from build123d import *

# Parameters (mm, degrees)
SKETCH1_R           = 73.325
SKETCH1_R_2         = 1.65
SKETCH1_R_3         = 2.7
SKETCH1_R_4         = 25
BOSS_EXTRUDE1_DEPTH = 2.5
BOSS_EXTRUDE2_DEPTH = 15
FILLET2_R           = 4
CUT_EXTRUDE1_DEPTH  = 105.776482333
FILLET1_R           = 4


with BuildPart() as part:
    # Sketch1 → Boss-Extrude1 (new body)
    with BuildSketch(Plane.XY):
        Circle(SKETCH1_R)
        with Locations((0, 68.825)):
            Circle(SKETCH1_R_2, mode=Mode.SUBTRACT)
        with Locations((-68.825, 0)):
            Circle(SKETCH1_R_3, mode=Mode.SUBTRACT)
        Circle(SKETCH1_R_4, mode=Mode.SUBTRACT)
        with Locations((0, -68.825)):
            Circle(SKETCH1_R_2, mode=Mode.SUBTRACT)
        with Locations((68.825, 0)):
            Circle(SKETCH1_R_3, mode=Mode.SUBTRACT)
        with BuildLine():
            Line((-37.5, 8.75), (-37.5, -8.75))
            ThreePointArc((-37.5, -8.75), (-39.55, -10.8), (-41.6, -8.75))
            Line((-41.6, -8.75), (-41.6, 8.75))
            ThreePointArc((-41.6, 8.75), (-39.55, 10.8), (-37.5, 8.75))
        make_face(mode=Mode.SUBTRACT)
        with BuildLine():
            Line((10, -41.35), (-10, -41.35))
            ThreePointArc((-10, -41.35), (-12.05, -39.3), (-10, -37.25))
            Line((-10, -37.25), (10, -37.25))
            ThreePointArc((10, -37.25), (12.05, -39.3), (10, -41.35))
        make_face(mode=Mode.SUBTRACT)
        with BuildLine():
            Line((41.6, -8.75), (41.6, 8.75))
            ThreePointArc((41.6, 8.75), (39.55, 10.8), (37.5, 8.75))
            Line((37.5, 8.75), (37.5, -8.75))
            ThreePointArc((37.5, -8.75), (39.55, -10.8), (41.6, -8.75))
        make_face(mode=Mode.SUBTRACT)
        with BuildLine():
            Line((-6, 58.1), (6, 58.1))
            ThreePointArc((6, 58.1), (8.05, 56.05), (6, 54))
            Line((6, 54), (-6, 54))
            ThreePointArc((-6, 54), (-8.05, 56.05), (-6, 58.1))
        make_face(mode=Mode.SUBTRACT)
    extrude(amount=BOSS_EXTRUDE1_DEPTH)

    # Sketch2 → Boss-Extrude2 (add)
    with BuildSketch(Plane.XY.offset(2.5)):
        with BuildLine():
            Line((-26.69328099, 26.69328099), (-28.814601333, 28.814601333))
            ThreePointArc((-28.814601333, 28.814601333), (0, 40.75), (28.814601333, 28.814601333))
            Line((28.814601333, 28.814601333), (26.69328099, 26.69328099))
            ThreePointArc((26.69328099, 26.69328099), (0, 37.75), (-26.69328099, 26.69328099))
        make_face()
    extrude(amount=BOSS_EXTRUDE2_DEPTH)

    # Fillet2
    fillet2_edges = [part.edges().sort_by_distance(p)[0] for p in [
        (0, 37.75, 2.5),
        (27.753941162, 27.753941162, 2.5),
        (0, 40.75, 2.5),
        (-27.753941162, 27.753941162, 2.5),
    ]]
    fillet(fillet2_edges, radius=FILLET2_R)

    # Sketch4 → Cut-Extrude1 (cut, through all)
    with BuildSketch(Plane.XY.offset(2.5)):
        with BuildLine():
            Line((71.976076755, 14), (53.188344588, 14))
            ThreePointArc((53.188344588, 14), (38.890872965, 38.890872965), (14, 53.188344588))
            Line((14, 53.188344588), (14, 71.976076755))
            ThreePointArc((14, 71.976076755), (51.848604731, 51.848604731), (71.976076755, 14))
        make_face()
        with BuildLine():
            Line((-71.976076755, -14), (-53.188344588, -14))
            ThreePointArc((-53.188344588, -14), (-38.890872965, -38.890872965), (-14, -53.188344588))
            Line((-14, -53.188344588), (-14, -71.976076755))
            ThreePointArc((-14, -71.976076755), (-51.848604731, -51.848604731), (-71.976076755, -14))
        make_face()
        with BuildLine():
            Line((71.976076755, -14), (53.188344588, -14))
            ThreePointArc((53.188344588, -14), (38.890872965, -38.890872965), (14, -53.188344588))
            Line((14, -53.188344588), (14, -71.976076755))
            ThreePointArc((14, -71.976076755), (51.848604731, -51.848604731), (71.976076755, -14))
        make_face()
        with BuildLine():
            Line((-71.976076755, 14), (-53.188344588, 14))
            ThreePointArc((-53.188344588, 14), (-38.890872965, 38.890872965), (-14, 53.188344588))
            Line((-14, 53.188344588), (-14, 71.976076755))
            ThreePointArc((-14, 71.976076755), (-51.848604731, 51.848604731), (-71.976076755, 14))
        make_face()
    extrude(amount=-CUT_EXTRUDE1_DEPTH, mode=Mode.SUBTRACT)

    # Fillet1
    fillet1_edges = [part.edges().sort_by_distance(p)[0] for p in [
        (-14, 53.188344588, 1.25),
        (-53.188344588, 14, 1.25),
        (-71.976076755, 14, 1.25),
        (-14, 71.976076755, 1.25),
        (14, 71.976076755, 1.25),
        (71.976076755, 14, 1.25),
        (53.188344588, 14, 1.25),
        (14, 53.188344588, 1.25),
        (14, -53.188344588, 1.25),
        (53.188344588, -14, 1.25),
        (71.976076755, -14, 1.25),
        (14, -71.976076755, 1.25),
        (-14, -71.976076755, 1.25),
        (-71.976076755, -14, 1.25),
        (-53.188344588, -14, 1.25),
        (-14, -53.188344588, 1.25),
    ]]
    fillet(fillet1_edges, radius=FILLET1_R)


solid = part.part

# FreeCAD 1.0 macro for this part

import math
import FreeCAD as App
import Part
import Sketcher
from FreeCAD import Vector


def edges_at(feature, points):
    """Names of the edges that pass closest to the given points."""
    edges = feature.Shape.Edges
    near = lambda p: min(range(len(edges)), key=lambda i: edges[i].distToShape(Part.Vertex(*p))[0])
    return sorted({f"Edge{near(p) + 1}" for p in points})

doc = App.newDocument("Part")
body = doc.addObject("PartDesign::Body", "Body")

# Sketch on XY plane
sketch1 = body.newObject("Sketcher::SketchObject", "Sketch")
sketch1.AttachmentSupport = (doc.getObject("XY_Plane"), [""])
sketch1.MapMode = "FlatFace"
sketch1.addGeometry(Part.Circle(Vector(0, 0, 0), Vector(0, 0, 1), 73.3), False)
sketch1.addGeometry(Part.Circle(Vector(0, -68.8, 0), Vector(0, 0, 1), 1.6), False)
sketch1.addGeometry(Part.ArcOfCircle(Part.Circle(Vector(10, -39.3, 0), Vector(0, 0, 1), 2), math.radians(-90), math.radians(90)), False)
sketch1.addGeometry(Part.LineSegment(Vector(10, -41.4, 0), Vector(-10, -41.4, 0)), False)
sketch1.addGeometry(Part.ArcOfCircle(Part.Circle(Vector(-10, -39.3, 0), Vector(0, 0, 1), 2), math.radians(90), math.radians(270)), False)
sketch1.addGeometry(Part.LineSegment(Vector(-10, -37.2, 0), Vector(10, -37.2, 0)), False)
sketch1.addGeometry(Part.Circle(Vector(-68.8, 0, 0), Vector(0, 0, 1), 2.7), False)
sketch1.addGeometry(Part.ArcOfCircle(Part.Circle(Vector(-39.5, 8.8, 0), Vector(0, 0, 1), 2), math.radians(0), math.radians(180)), False)
sketch1.addGeometry(Part.LineSegment(Vector(-37.5, 8.8, 0), Vector(-37.5, -8.8, 0)), False)
sketch1.addGeometry(Part.ArcOfCircle(Part.Circle(Vector(-39.5, -8.8, 0), Vector(0, 0, 1), 2), math.radians(180), math.radians(360)), False)
sketch1.addGeometry(Part.LineSegment(Vector(-41.6, -8.8, 0), Vector(-41.6, 8.8, 0)), False)
sketch1.addGeometry(Part.Circle(Vector(0, 0, 0), Vector(0, 0, 1), 25), False)
sketch1.addGeometry(Part.LineSegment(Vector(41.6, 8.8, 0), Vector(41.6, -8.8, 0)), False)
sketch1.addGeometry(Part.ArcOfCircle(Part.Circle(Vector(39.5, -8.8, 0), Vector(0, 0, 1), 2), math.radians(180), math.radians(360)), False)
sketch1.addGeometry(Part.LineSegment(Vector(37.5, -8.8, 0), Vector(37.5, 8.8, 0)), False)
sketch1.addGeometry(Part.ArcOfCircle(Part.Circle(Vector(39.5, 8.8, 0), Vector(0, 0, 1), 2), math.radians(0), math.radians(180)), False)
sketch1.addGeometry(Part.Circle(Vector(68.8, 0, 0), Vector(0, 0, 1), 2.7), False)
sketch1.addGeometry(Part.ArcOfCircle(Part.Circle(Vector(-6, 56, 0), Vector(0, 0, 1), 2), math.radians(90), math.radians(270)), False)
sketch1.addGeometry(Part.LineSegment(Vector(-6, 58.1, 0), Vector(6, 58.1, 0)), False)
sketch1.addGeometry(Part.ArcOfCircle(Part.Circle(Vector(6, 56, 0), Vector(0, 0, 1), 2), math.radians(-90), math.radians(90)), False)
sketch1.addGeometry(Part.LineSegment(Vector(6, 54, 0), Vector(-6, 54, 0)), False)
sketch1.addGeometry(Part.Circle(Vector(0, 68.8, 0), Vector(0, 0, 1), 1.6), False)
sketch1.addConstraint(Sketcher.Constraint("Tangent", 2, 1, 3, 1))
sketch1.addConstraint(Sketcher.Constraint("Tangent", 3, 2, 4, 2))
sketch1.addConstraint(Sketcher.Constraint("Tangent", 4, 1, 5, 1))
sketch1.addConstraint(Sketcher.Constraint("Tangent", 5, 2, 2, 2))
sketch1.addConstraint(Sketcher.Constraint("Tangent", 7, 1, 8, 1))
sketch1.addConstraint(Sketcher.Constraint("Tangent", 8, 2, 9, 2))
sketch1.addConstraint(Sketcher.Constraint("Tangent", 9, 1, 10, 1))
sketch1.addConstraint(Sketcher.Constraint("Tangent", 10, 2, 7, 2))
sketch1.addConstraint(Sketcher.Constraint("Tangent", 12, 2, 13, 2))
sketch1.addConstraint(Sketcher.Constraint("Tangent", 13, 1, 14, 1))
sketch1.addConstraint(Sketcher.Constraint("Tangent", 14, 2, 15, 2))
sketch1.addConstraint(Sketcher.Constraint("Tangent", 15, 1, 12, 1))
sketch1.addConstraint(Sketcher.Constraint("Tangent", 17, 1, 18, 1))
sketch1.addConstraint(Sketcher.Constraint("Tangent", 18, 2, 19, 2))
sketch1.addConstraint(Sketcher.Constraint("Tangent", 19, 1, 20, 1))
sketch1.addConstraint(Sketcher.Constraint("Tangent", 20, 2, 17, 2))
sketch1.addConstraint(Sketcher.Constraint("Horizontal", 3))
sketch1.addConstraint(Sketcher.Constraint("Horizontal", 5))
sketch1.addConstraint(Sketcher.Constraint("Vertical", 8))
sketch1.addConstraint(Sketcher.Constraint("Vertical", 10))
sketch1.addConstraint(Sketcher.Constraint("Vertical", 12))
sketch1.addConstraint(Sketcher.Constraint("Vertical", 14))
sketch1.addConstraint(Sketcher.Constraint("Horizontal", 18))
sketch1.addConstraint(Sketcher.Constraint("Horizontal", 20))
sketch1.addConstraint(Sketcher.Constraint("Coincident", 0, 3, -1, 1))
sketch1.addConstraint(Sketcher.Constraint("Coincident", 11, 3, -1, 1))
sketch1.addConstraint(Sketcher.Constraint("Equal", 4, 7))
sketch1.addConstraint(Sketcher.Constraint("Equal", 9, 13))
sketch1.addConstraint(Sketcher.Constraint("Equal", 6, 16))
sketch1.addConstraint(Sketcher.Constraint("Equal", 15, 17))
sketch1.addConstraint(Sketcher.Constraint("Equal", 1, 21))
sketch1.addConstraint(Sketcher.Constraint("Symmetric", 7, 3, 13, 3, -1, 1))
sketch1.addConstraint(Sketcher.Constraint("Symmetric", 6, 3, 16, 3, -1, 1))
sketch1.addConstraint(Sketcher.Constraint("Symmetric", 1, 3, 21, 3, -1, 1))
sketch1.addConstraint(Sketcher.Constraint("PointOnObject", 1, 3, -2))
sketch1.addConstraint(Sketcher.Constraint("PointOnObject", 6, 3, -1))
sketch1.addConstraint(Sketcher.Constraint("Horizontal", 9, 3, 13, 3))
sketch1.addConstraint(Sketcher.Constraint("Horizontal", 7, 3, 15, 3))
sketch1.addConstraint(Sketcher.Constraint("Diameter", 11, 50.0))
sketch1.addConstraint(Sketcher.Constraint("Diameter", 1, 3.3))
sketch1.addConstraint(Sketcher.Constraint("Diameter", 6, 5.4))
sketch1.addConstraint(Sketcher.Constraint("Diameter", 0, 146.65))
sketch1.addConstraint(Sketcher.Constraint("DistanceX", 3, 2, 3, 1, 20.0))
sketch1.addConstraint(Sketcher.Constraint("DistanceX", 18, 1, 18, 2, 12.0))
sketch1.addConstraint(Sketcher.Constraint("Radius", 2, 2.05))
sketch1.addConstraint(Sketcher.Constraint("DistanceY", 8, 2, 8, 1, 17.5))
sketch1.addConstraint(Sketcher.Constraint("DistanceX", -1, 1, 2, 3, 10.0))
sketch1.addConstraint(Sketcher.Constraint("DistanceX", 17, 3, -1, 1, 6.0))
sketch1.addConstraint(Sketcher.Constraint("DistanceY", -1, 1, 19, 1, 54.0))
sketch1.addConstraint(Sketcher.Constraint("DistanceY", 2, 3, -1, 1, 39.3))
sketch1.addConstraint(Sketcher.Constraint("DistanceX", 7, 1, -1, 1, 37.5))
sketch1.addConstraint(Sketcher.Constraint("DistanceY", 1, 3, -1, 1, 68.825))
sketch1.addConstraint(Sketcher.Constraint("DistanceX", 6, 3, -1, 1, 68.825))
pad1 = body.newObject("PartDesign::Pad", "Pad")
pad1.Profile = sketch1
pad1.Length = 2.5

# Sketch on XY plane
sketch2 = body.newObject("Sketcher::SketchObject", "Sketch001")
sketch2.AttachmentSupport = (doc.getObject("XY_Plane"), [""])
sketch2.MapMode = "FlatFace"
sketch2.AttachmentOffset = App.Placement(Vector(0, 0, 2.5), App.Rotation())
sketch2.addGeometry(Part.LineSegment(Vector(-28.8, 28.8, 0), Vector(-26.7, 26.7, 0)), False)
sketch2.addGeometry(Part.ArcOfCircle(Part.Circle(Vector(0, 0, 0), Vector(0, 0, 1), 37.8), math.radians(45), math.radians(135)), False)
sketch2.addGeometry(Part.LineSegment(Vector(26.7, 26.7, 0), Vector(28.8, 28.8, 0)), False)
sketch2.addGeometry(Part.ArcOfCircle(Part.Circle(Vector(0, 0, 0), Vector(0, 0, 1), 40.7), math.radians(45), math.radians(135)), False)
sketch2.addConstraint(Sketcher.Constraint("Coincident", 0, 2, 1, 2))
sketch2.addConstraint(Sketcher.Constraint("Coincident", 1, 1, 2, 1))
sketch2.addConstraint(Sketcher.Constraint("Coincident", 2, 2, 3, 1))
sketch2.addConstraint(Sketcher.Constraint("Coincident", 3, 2, 0, 1))
sketch2.addConstraint(Sketcher.Constraint("Coincident", 1, 3, -1, 1))
sketch2.addConstraint(Sketcher.Constraint("Coincident", 3, 3, -1, 1))
sketch2.addConstraint(Sketcher.Constraint("Perpendicular", 0, 2))
sketch2.addConstraint(Sketcher.Constraint("Horizontal", 0, 2, 1, 1))
sketch2.addConstraint(Sketcher.Constraint("Horizontal", 2, 2, 3, 2))
sketch2.addConstraint(Sketcher.Constraint("Radius", 1, 37.75))
sketch2.addConstraint(Sketcher.Constraint("Radius", 3, 40.75))
sketch2.addConstraint(Sketcher.Constraint("DistanceX", -1, 1, 2, 2, 28.814601))
pad2 = body.newObject("PartDesign::Pad", "Pad001")
pad2.Profile = sketch2
pad2.Length = 15
doc.recompute()

fillet = body.newObject("PartDesign::Fillet", "Fillet")
fillet.Base = (pad2, edges_at(pad2, [
    (0, 37.75, 2.5),
    (27.754, 27.754, 2.5),
    (0, 40.75, 2.5),
    (-27.754, 27.754, 2.5),
]))
fillet.Radius = 4

# Sketch on XY plane
sketch3 = body.newObject("Sketcher::SketchObject", "Sketch002")
sketch3.AttachmentSupport = (doc.getObject("XY_Plane"), [""])
sketch3.MapMode = "FlatFace"
sketch3.AttachmentOffset = App.Placement(Vector(0, 0, 2.5), App.Rotation())
sketch3.addGeometry(Part.LineSegment(Vector(53, 14, 0), Vector(72, 14, 0)), False)
sketch3.addGeometry(Part.ArcOfCircle(Part.Circle(Vector(0, 0, 0), Vector(0, 0, 1), 73), math.radians(11), math.radians(79)), False)
sketch3.addGeometry(Part.LineSegment(Vector(14, 72, 0), Vector(14, 53, 0)), False)
sketch3.addGeometry(Part.ArcOfCircle(Part.Circle(Vector(0, 0, 0), Vector(0, 0, 1), 55), math.radians(15), math.radians(75)), False)
sketch3.addGeometry(Part.LineSegment(Vector(-53, -14, 0), Vector(-72, -14, 0)), False)
sketch3.addGeometry(Part.ArcOfCircle(Part.Circle(Vector(0, 0, 0), Vector(0, 0, 1), 73), math.radians(-169), math.radians(-101)), False)
sketch3.addGeometry(Part.LineSegment(Vector(-14, -72, 0), Vector(-14, -53, 0)), False)
sketch3.addGeometry(Part.ArcOfCircle(Part.Circle(Vector(0, 0, 0), Vector(0, 0, 1), 55), math.radians(-165), math.radians(-105)), False)
sketch3.addGeometry(Part.LineSegment(Vector(72, -14, 0), Vector(53, -14, 0)), False)
sketch3.addGeometry(Part.ArcOfCircle(Part.Circle(Vector(0, 0, 0), Vector(0, 0, 1), 55), math.radians(-75), math.radians(-15)), False)
sketch3.addGeometry(Part.LineSegment(Vector(14, -53, 0), Vector(14, -72, 0)), False)
sketch3.addGeometry(Part.ArcOfCircle(Part.Circle(Vector(0, 0, 0), Vector(0, 0, 1), 73), math.radians(-79), math.radians(-11)), False)
sketch3.addGeometry(Part.LineSegment(Vector(-72, 14, 0), Vector(-53, 14, 0)), False)
sketch3.addGeometry(Part.ArcOfCircle(Part.Circle(Vector(0, 0, 0), Vector(0, 0, 1), 55), math.radians(105), math.radians(165)), False)
sketch3.addGeometry(Part.LineSegment(Vector(-14, 53, 0), Vector(-14, 72, 0)), False)
sketch3.addGeometry(Part.ArcOfCircle(Part.Circle(Vector(0, 0, 0), Vector(0, 0, 1), 73), math.radians(101), math.radians(169)), False)
sketch3.addConstraint(Sketcher.Constraint("Coincident", 0, 2, 1, 1))
sketch3.addConstraint(Sketcher.Constraint("Coincident", 1, 2, 2, 1))
sketch3.addConstraint(Sketcher.Constraint("Coincident", 2, 2, 3, 2))
sketch3.addConstraint(Sketcher.Constraint("Coincident", 3, 1, 0, 1))
sketch3.addConstraint(Sketcher.Constraint("Coincident", 4, 2, 5, 1))
sketch3.addConstraint(Sketcher.Constraint("Coincident", 5, 2, 6, 1))
sketch3.addConstraint(Sketcher.Constraint("Coincident", 6, 2, 7, 2))
sketch3.addConstraint(Sketcher.Constraint("Coincident", 7, 1, 4, 1))
sketch3.addConstraint(Sketcher.Constraint("Coincident", 8, 2, 9, 2))
sketch3.addConstraint(Sketcher.Constraint("Coincident", 9, 1, 10, 1))
sketch3.addConstraint(Sketcher.Constraint("Coincident", 10, 2, 11, 1))
sketch3.addConstraint(Sketcher.Constraint("Coincident", 11, 2, 8, 1))
sketch3.addConstraint(Sketcher.Constraint("Coincident", 12, 2, 13, 2))
sketch3.addConstraint(Sketcher.Constraint("Coincident", 13, 1, 14, 1))
sketch3.addConstraint(Sketcher.Constraint("Coincident", 14, 2, 15, 1))
sketch3.addConstraint(Sketcher.Constraint("Coincident", 15, 2, 12, 1))
sketch3.addConstraint(Sketcher.Constraint("Horizontal", 0))
sketch3.addConstraint(Sketcher.Constraint("Vertical", 2))
sketch3.addConstraint(Sketcher.Constraint("Horizontal", 4))
sketch3.addConstraint(Sketcher.Constraint("Vertical", 6))
sketch3.addConstraint(Sketcher.Constraint("Horizontal", 8))
sketch3.addConstraint(Sketcher.Constraint("Vertical", 10))
sketch3.addConstraint(Sketcher.Constraint("Horizontal", 12))
sketch3.addConstraint(Sketcher.Constraint("Vertical", 14))
sketch3.addConstraint(Sketcher.Constraint("Coincident", 1, 3, -1, 1))
sketch3.addConstraint(Sketcher.Constraint("Coincident", 3, 3, -1, 1))
sketch3.addConstraint(Sketcher.Constraint("Coincident", 5, 3, -1, 1))
sketch3.addConstraint(Sketcher.Constraint("Coincident", 7, 3, -1, 1))
sketch3.addConstraint(Sketcher.Constraint("Coincident", 9, 3, -1, 1))
sketch3.addConstraint(Sketcher.Constraint("Coincident", 11, 3, -1, 1))
sketch3.addConstraint(Sketcher.Constraint("Coincident", 13, 3, -1, 1))
sketch3.addConstraint(Sketcher.Constraint("Coincident", 15, 3, -1, 1))
sketch3.addConstraint(Sketcher.Constraint("Equal", 1, 5))
sketch3.addConstraint(Sketcher.Constraint("Equal", 3, 7))
sketch3.addConstraint(Sketcher.Constraint("Equal", 7, 9))
sketch3.addConstraint(Sketcher.Constraint("Equal", 5, 11))
sketch3.addConstraint(Sketcher.Constraint("Equal", 9, 13))
sketch3.addConstraint(Sketcher.Constraint("Equal", 11, 15))
sketch3.addConstraint(Sketcher.Constraint("Horizontal", 7, 1, 8, 2))
sketch3.addConstraint(Sketcher.Constraint("Horizontal", 6, 2, 9, 1))
sketch3.addConstraint(Sketcher.Constraint("Horizontal", 3, 1, 12, 2))
sketch3.addConstraint(Sketcher.Constraint("Horizontal", 2, 2, 13, 1))
sketch3.addConstraint(Sketcher.Constraint("Vertical", 3, 1, 8, 2))
sketch3.addConstraint(Sketcher.Constraint("Vertical", 2, 2, 9, 1))
sketch3.addConstraint(Sketcher.Constraint("Equal", 12, 2))
sketch3.addConstraint(Sketcher.Constraint("Radius", 3, 55.0))
sketch3.addConstraint(Sketcher.Constraint("DistanceY", -1, 1, 0, 2, 14.0))
sketch3.addConstraint(Sketcher.Constraint("Radius", 1, 73.325))
pocket1 = body.newObject("PartDesign::Pocket", "Pocket")
pocket1.Profile = sketch3
pocket1.Type = "ThroughAll"
doc.recompute()

fillet2 = body.newObject("PartDesign::Fillet", "Fillet001")
fillet2.Base = (pocket1, edges_at(pocket1, [
    (-14, 53.188, 1.25),
    (-53.188, 14, 1.25),
    (-71.976, 14, 1.25),
    (-14, 71.976, 1.25),
    (14, 71.976, 1.25),
    (71.976, 14, 1.25),
    (53.188, 14, 1.25),
    (14, 53.188, 1.25),
    (14, -53.188, 1.25),
    (53.188, -14, 1.25),
    (71.976, -14, 1.25),
    (14, -71.976, 1.25),
    (-14, -71.976, 1.25),
    (-71.976, -14, 1.25),
    (-53.188, -14, 1.25),
    (-14, -53.188, 1.25),
]))
fillet2.Radius = 4

doc.recompute()
